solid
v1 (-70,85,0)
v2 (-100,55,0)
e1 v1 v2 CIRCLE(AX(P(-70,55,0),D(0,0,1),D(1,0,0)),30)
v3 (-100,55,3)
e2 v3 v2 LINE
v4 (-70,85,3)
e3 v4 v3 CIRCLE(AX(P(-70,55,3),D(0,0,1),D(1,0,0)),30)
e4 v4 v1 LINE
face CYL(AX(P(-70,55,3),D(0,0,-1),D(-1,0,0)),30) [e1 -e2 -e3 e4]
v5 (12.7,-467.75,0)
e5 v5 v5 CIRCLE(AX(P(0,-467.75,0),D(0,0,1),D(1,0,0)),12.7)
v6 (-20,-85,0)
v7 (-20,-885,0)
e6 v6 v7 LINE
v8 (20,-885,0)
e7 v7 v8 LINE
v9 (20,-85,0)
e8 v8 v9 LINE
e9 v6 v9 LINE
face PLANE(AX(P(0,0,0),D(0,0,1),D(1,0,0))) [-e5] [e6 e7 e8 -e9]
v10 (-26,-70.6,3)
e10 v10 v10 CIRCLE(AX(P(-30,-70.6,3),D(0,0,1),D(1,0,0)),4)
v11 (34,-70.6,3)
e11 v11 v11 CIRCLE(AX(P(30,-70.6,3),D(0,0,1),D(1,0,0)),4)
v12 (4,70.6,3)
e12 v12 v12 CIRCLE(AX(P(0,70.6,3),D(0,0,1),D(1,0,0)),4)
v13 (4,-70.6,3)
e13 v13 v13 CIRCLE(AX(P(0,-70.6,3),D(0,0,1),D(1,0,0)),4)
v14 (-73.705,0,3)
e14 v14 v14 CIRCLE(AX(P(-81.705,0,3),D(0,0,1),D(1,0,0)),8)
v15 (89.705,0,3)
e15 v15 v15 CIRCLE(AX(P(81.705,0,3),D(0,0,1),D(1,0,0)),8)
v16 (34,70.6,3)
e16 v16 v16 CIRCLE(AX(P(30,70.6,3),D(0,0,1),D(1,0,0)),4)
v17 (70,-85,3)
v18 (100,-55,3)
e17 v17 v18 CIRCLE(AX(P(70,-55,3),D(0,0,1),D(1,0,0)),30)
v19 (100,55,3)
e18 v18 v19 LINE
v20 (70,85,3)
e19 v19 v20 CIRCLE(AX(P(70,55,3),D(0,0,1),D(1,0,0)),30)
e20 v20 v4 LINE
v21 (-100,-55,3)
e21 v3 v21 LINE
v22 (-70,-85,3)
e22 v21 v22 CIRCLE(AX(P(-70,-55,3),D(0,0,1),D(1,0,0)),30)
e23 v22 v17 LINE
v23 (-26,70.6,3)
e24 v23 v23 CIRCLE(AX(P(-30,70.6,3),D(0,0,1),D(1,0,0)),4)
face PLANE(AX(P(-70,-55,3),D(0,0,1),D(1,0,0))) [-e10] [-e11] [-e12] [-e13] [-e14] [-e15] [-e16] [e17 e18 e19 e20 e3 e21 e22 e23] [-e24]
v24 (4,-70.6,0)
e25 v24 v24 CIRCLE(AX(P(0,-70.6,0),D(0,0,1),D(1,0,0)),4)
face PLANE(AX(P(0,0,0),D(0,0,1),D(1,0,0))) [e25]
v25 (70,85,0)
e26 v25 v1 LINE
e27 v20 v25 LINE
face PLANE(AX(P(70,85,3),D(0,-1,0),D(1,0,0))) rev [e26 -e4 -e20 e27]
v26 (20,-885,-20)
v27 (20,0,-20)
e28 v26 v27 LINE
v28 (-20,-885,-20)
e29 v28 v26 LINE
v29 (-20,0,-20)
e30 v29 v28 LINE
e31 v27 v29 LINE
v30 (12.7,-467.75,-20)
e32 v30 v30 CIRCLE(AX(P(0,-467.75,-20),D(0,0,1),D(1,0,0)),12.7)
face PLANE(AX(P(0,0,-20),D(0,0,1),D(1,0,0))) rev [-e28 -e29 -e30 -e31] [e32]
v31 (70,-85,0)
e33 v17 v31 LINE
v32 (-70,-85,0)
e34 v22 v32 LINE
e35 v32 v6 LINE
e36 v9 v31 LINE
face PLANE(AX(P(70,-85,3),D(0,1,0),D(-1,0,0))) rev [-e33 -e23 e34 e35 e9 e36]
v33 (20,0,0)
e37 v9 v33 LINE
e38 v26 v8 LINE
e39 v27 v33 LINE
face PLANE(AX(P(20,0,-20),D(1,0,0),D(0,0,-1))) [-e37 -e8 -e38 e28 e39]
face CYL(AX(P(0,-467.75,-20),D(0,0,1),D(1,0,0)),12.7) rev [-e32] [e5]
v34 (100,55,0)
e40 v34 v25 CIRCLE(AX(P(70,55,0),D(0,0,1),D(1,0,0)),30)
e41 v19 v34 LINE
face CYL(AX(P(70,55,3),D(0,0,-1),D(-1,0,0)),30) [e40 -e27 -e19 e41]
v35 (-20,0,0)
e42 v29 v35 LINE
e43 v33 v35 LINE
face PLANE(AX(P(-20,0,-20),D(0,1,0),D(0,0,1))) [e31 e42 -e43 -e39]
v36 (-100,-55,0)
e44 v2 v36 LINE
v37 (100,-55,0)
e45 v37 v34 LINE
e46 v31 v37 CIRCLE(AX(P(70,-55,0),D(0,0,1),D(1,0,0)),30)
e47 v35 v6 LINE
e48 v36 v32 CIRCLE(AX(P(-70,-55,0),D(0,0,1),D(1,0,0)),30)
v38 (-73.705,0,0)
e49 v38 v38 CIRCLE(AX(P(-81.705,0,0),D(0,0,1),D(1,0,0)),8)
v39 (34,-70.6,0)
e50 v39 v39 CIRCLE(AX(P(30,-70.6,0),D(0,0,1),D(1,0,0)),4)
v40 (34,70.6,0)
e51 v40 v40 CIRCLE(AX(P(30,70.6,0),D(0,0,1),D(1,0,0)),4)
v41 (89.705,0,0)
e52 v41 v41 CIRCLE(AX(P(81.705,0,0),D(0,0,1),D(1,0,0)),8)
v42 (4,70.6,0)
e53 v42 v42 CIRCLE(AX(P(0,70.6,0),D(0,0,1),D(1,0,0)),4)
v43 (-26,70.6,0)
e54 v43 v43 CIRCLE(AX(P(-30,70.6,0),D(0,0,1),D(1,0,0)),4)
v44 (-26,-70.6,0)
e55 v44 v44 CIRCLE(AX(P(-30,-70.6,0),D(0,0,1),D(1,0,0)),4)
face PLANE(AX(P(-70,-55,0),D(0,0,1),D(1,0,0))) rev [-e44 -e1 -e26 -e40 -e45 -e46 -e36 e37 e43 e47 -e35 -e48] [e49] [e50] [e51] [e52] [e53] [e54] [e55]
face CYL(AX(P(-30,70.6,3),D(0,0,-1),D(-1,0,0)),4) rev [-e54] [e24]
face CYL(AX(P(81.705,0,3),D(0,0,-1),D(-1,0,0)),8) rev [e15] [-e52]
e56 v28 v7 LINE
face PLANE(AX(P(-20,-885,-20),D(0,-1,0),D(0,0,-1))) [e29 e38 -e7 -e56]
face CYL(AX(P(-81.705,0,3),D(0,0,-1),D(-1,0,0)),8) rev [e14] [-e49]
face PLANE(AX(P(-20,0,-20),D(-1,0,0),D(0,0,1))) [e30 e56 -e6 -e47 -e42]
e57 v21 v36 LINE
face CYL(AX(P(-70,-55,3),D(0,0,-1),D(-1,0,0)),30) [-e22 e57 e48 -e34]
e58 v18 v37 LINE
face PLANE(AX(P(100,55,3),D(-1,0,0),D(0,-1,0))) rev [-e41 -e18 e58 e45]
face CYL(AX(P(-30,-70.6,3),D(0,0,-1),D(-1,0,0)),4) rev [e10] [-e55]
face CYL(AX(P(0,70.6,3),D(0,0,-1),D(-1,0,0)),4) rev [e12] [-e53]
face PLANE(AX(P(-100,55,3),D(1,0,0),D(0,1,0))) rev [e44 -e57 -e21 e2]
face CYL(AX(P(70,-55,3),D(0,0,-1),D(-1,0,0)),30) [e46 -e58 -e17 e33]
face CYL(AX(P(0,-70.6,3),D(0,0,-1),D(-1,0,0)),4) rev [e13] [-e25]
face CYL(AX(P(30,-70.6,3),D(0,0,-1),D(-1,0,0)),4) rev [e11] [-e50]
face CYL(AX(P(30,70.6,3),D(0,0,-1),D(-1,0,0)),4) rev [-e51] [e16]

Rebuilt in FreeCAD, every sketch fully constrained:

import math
import FreeCAD as App
import Part
import Sketcher
Q = App.Units.Quantity

doc = App.newDocument("Part")
params = doc.addObject("Spreadsheet::Sheet", "Params")
for row, (alias, value) in enumerate([
    ("sketch1_diameter", "8 mm"),
    ("sketch1_diameter2", "16 mm"),
    ("sketch1_radius", "30 mm"),
    ("sketch1_width", "140 mm"),
    ("sketch1_height", "110 mm"),
    ("pad1_length", "3 mm"),
    ("sketch2_diameter", "25.4 mm"),
    ("sketch2_width", "40 mm"),
    ("sketch2_height", "885 mm"),
    ("pad2_length", "20 mm"),
], start=1):
    params.set(f"A{row}", alias)
    params.set(f"B{row}", "=" + value)
    params.setAlias(f"B{row}", alias)

body = doc.addObject("PartDesign::Body", "Body")

sketch1 = body.newObject("Sketcher::SketchObject", "Sketch")
sketch1.AttachmentSupport = (doc.getObject("XY_Plane"), [""])
sketch1.MapMode = "FlatFace"
sketch1.addGeometry([
    Part.LineSegment(App.Vector(70, 85, 0), App.Vector(-70, 85, 0)),
    Part.ArcOfCircle(Part.Circle(App.Vector(-70, 55, 0), App.Vector(0, 0, 1), 30), math.radians(90), math.radians(180)),
    Part.LineSegment(App.Vector(-100, 55, 0), App.Vector(-100, -55, 0)),
    Part.ArcOfCircle(Part.Circle(App.Vector(-70, -55, 0), App.Vector(0, 0, 1), 30), math.radians(180), math.radians(270)),
    Part.LineSegment(App.Vector(-70, -85, 0), App.Vector(70, -85, 0)),
    Part.ArcOfCircle(Part.Circle(App.Vector(70, -55, 0), App.Vector(0, 0, 1), 30), math.radians(-90), math.radians(0)),
    Part.LineSegment(App.Vector(100, -55, 0), App.Vector(100, 55, 0)),
    Part.ArcOfCircle(Part.Circle(App.Vector(70, 55, 0), App.Vector(0, 0, 1), 30), math.radians(0), math.radians(90)),
    Part.Circle(App.Vector(-30, -70.6, 0), App.Vector(0, 0, 1), 4),
    Part.Circle(App.Vector(-81.705, 0, 0), App.Vector(0, 0, 1), 8),
    Part.Circle(App.Vector(0, -70.6, 0), App.Vector(0, 0, 1), 4),
    Part.Circle(App.Vector(30, -70.6, 0), App.Vector(0, 0, 1), 4),
    Part.Circle(App.Vector(81.705, 0, 0), App.Vector(0, 0, 1), 8),
    Part.Circle(App.Vector(-30, 70.6, 0), App.Vector(0, 0, 1), 4),
    Part.Circle(App.Vector(0, 70.6, 0), App.Vector(0, 0, 1), 4),
    Part.Circle(App.Vector(30, 70.6, 0), App.Vector(0, 0, 1), 4),
], False)
sketch1.addConstraint([
    Sketcher.Constraint("Tangent", 0, 2, 1, 1),
    Sketcher.Constraint("Tangent", 1, 2, 2, 1),
    Sketcher.Constraint("Tangent", 2, 2, 3, 1),
    Sketcher.Constraint("Tangent", 3, 2, 4, 1),
    Sketcher.Constraint("Tangent", 4, 2, 5, 1),
    Sketcher.Constraint("Tangent", 5, 2, 6, 1),
    Sketcher.Constraint("Tangent", 6, 2, 7, 1),
    Sketcher.Constraint("Tangent", 7, 2, 0, 1),
    Sketcher.Constraint("Horizontal", 0),
    Sketcher.Constraint("Vertical", 2),
    Sketcher.Constraint("Horizontal", 4),
    Sketcher.Constraint("Vertical", 6),
    Sketcher.Constraint("Equal", 1, 3),
    Sketcher.Constraint("Equal", 3, 5),
    Sketcher.Constraint("Equal", 5, 7),
    Sketcher.Constraint("Equal", 8, 10),
    Sketcher.Constraint("Equal", 10, 11),
    Sketcher.Constraint("Equal", 9, 12),
    Sketcher.Constraint("Equal", 11, 13),
    Sketcher.Constraint("Equal", 13, 14),
    Sketcher.Constraint("Equal", 14, 15),
    Sketcher.Constraint("Symmetric", 1, 3, 5, 3, -1, 1),
    Sketcher.Constraint("Symmetric", 9, 3, 12, 3, -1, 1),
    Sketcher.Constraint("Symmetric", 11, 3, 13, 3, -1, 1),
    Sketcher.Constraint("Symmetric", 10, 3, 14, 3, -1, 1),
    Sketcher.Constraint("Symmetric", 8, 3, 15, 3, -1, 1),
    Sketcher.Constraint("Symmetric", 8, 3, 11, 3, -2),
    Sketcher.Constraint("PointOnObject", 9, 3, -1),
    Sketcher.Constraint("PointOnObject", 10, 3, -2),
    Sketcher.Constraint("Horizontal", 8, 3, 10, 3),
    Sketcher.Constraint("Diameter", 8, Q("8 mm")),
    Sketcher.Constraint("Diameter", 9, Q("16 mm")),
    Sketcher.Constraint("Radius", 1, Q("30 mm")),
    Sketcher.Constraint("DistanceX", 0, 2, 0, 1, Q("140 mm")),
    Sketcher.Constraint("DistanceY", 2, 2, 2, 1, Q("110 mm")),
    Sketcher.Constraint("DistanceX", 8, 3, -1, 1, Q("30 mm")),
    Sketcher.Constraint("DistanceY", 8, 3, -1, 1, Q("70.6 mm")),
    Sketcher.Constraint("DistanceX", 9, 3, -1, 1, Q("81.705 mm")),
])
sketch1.setExpression("Constraints[30]", "Params.sketch1_diameter")
sketch1.setExpression("Constraints[31]", "Params.sketch1_diameter2")
sketch1.setExpression("Constraints[32]", "Params.sketch1_radius")
sketch1.setExpression("Constraints[33]", "Params.sketch1_width")
sketch1.setExpression("Constraints[34]", "Params.sketch1_height")
pad1 = body.newObject("PartDesign::Pad", "Pad")
pad1.Profile = sketch1
pad1.setExpression("Length", "Params.pad1_length")

sketch2 = body.newObject("Sketcher::SketchObject", "Sketch001")
sketch2.AttachmentSupport = (doc.getObject("XY_Plane"), [""])
sketch2.MapMode = "FlatFace"
sketch2.addGeometry([
    Part.LineSegment(App.Vector(-20, 0, 0), App.Vector(-20, -885, 0)),
    Part.LineSegment(App.Vector(-20, -885, 0), App.Vector(20, -885, 0)),
    Part.LineSegment(App.Vector(20, -885, 0), App.Vector(20, 0, 0)),
    Part.LineSegment(App.Vector(20, 0, 0), App.Vector(-20, 0, 0)),
    Part.Circle(App.Vector(0, -467.75, 0), App.Vector(0, 0, 1), 12.7),
], False)
sketch2.addConstraint([
    Sketcher.Constraint("Coincident", 0, 2, 1, 1),
    Sketcher.Constraint("Coincident", 1, 2, 2, 1),
    Sketcher.Constraint("Coincident", 2, 2, 3, 1),
    Sketcher.Constraint("Coincident", 3, 2, 0, 1),
    Sketcher.Constraint("Vertical", 0),
    Sketcher.Constraint("Horizontal", 1),
    Sketcher.Constraint("Vertical", 2),
    Sketcher.Constraint("Horizontal", 3),
    Sketcher.Constraint("Symmetric", 2, 2, 3, 2, -1, 1),
    Sketcher.Constraint("PointOnObject", 4, 3, -2),
    Sketcher.Constraint("Diameter", 4, Q("25.4 mm")),
    Sketcher.Constraint("DistanceX", 1, 1, 1, 2, Q("40 mm")),
    Sketcher.Constraint("DistanceY", 0, 2, 0, 1, Q("885 mm")),
    Sketcher.Constraint("DistanceY", 4, 3, -1, 1, Q("467.75 mm")),
])
sketch2.setExpression("Constraints[10]", "Params.sketch2_diameter")
sketch2.setExpression("Constraints[11]", "Params.sketch2_width")
sketch2.setExpression("Constraints[12]", "Params.sketch2_height")
pad2 = body.newObject("PartDesign::Pad", "Pad001")
pad2.Profile = sketch2
pad2.setExpression("Length", "Params.pad2_length")
pad2.Reversed = True

doc.recompute()
